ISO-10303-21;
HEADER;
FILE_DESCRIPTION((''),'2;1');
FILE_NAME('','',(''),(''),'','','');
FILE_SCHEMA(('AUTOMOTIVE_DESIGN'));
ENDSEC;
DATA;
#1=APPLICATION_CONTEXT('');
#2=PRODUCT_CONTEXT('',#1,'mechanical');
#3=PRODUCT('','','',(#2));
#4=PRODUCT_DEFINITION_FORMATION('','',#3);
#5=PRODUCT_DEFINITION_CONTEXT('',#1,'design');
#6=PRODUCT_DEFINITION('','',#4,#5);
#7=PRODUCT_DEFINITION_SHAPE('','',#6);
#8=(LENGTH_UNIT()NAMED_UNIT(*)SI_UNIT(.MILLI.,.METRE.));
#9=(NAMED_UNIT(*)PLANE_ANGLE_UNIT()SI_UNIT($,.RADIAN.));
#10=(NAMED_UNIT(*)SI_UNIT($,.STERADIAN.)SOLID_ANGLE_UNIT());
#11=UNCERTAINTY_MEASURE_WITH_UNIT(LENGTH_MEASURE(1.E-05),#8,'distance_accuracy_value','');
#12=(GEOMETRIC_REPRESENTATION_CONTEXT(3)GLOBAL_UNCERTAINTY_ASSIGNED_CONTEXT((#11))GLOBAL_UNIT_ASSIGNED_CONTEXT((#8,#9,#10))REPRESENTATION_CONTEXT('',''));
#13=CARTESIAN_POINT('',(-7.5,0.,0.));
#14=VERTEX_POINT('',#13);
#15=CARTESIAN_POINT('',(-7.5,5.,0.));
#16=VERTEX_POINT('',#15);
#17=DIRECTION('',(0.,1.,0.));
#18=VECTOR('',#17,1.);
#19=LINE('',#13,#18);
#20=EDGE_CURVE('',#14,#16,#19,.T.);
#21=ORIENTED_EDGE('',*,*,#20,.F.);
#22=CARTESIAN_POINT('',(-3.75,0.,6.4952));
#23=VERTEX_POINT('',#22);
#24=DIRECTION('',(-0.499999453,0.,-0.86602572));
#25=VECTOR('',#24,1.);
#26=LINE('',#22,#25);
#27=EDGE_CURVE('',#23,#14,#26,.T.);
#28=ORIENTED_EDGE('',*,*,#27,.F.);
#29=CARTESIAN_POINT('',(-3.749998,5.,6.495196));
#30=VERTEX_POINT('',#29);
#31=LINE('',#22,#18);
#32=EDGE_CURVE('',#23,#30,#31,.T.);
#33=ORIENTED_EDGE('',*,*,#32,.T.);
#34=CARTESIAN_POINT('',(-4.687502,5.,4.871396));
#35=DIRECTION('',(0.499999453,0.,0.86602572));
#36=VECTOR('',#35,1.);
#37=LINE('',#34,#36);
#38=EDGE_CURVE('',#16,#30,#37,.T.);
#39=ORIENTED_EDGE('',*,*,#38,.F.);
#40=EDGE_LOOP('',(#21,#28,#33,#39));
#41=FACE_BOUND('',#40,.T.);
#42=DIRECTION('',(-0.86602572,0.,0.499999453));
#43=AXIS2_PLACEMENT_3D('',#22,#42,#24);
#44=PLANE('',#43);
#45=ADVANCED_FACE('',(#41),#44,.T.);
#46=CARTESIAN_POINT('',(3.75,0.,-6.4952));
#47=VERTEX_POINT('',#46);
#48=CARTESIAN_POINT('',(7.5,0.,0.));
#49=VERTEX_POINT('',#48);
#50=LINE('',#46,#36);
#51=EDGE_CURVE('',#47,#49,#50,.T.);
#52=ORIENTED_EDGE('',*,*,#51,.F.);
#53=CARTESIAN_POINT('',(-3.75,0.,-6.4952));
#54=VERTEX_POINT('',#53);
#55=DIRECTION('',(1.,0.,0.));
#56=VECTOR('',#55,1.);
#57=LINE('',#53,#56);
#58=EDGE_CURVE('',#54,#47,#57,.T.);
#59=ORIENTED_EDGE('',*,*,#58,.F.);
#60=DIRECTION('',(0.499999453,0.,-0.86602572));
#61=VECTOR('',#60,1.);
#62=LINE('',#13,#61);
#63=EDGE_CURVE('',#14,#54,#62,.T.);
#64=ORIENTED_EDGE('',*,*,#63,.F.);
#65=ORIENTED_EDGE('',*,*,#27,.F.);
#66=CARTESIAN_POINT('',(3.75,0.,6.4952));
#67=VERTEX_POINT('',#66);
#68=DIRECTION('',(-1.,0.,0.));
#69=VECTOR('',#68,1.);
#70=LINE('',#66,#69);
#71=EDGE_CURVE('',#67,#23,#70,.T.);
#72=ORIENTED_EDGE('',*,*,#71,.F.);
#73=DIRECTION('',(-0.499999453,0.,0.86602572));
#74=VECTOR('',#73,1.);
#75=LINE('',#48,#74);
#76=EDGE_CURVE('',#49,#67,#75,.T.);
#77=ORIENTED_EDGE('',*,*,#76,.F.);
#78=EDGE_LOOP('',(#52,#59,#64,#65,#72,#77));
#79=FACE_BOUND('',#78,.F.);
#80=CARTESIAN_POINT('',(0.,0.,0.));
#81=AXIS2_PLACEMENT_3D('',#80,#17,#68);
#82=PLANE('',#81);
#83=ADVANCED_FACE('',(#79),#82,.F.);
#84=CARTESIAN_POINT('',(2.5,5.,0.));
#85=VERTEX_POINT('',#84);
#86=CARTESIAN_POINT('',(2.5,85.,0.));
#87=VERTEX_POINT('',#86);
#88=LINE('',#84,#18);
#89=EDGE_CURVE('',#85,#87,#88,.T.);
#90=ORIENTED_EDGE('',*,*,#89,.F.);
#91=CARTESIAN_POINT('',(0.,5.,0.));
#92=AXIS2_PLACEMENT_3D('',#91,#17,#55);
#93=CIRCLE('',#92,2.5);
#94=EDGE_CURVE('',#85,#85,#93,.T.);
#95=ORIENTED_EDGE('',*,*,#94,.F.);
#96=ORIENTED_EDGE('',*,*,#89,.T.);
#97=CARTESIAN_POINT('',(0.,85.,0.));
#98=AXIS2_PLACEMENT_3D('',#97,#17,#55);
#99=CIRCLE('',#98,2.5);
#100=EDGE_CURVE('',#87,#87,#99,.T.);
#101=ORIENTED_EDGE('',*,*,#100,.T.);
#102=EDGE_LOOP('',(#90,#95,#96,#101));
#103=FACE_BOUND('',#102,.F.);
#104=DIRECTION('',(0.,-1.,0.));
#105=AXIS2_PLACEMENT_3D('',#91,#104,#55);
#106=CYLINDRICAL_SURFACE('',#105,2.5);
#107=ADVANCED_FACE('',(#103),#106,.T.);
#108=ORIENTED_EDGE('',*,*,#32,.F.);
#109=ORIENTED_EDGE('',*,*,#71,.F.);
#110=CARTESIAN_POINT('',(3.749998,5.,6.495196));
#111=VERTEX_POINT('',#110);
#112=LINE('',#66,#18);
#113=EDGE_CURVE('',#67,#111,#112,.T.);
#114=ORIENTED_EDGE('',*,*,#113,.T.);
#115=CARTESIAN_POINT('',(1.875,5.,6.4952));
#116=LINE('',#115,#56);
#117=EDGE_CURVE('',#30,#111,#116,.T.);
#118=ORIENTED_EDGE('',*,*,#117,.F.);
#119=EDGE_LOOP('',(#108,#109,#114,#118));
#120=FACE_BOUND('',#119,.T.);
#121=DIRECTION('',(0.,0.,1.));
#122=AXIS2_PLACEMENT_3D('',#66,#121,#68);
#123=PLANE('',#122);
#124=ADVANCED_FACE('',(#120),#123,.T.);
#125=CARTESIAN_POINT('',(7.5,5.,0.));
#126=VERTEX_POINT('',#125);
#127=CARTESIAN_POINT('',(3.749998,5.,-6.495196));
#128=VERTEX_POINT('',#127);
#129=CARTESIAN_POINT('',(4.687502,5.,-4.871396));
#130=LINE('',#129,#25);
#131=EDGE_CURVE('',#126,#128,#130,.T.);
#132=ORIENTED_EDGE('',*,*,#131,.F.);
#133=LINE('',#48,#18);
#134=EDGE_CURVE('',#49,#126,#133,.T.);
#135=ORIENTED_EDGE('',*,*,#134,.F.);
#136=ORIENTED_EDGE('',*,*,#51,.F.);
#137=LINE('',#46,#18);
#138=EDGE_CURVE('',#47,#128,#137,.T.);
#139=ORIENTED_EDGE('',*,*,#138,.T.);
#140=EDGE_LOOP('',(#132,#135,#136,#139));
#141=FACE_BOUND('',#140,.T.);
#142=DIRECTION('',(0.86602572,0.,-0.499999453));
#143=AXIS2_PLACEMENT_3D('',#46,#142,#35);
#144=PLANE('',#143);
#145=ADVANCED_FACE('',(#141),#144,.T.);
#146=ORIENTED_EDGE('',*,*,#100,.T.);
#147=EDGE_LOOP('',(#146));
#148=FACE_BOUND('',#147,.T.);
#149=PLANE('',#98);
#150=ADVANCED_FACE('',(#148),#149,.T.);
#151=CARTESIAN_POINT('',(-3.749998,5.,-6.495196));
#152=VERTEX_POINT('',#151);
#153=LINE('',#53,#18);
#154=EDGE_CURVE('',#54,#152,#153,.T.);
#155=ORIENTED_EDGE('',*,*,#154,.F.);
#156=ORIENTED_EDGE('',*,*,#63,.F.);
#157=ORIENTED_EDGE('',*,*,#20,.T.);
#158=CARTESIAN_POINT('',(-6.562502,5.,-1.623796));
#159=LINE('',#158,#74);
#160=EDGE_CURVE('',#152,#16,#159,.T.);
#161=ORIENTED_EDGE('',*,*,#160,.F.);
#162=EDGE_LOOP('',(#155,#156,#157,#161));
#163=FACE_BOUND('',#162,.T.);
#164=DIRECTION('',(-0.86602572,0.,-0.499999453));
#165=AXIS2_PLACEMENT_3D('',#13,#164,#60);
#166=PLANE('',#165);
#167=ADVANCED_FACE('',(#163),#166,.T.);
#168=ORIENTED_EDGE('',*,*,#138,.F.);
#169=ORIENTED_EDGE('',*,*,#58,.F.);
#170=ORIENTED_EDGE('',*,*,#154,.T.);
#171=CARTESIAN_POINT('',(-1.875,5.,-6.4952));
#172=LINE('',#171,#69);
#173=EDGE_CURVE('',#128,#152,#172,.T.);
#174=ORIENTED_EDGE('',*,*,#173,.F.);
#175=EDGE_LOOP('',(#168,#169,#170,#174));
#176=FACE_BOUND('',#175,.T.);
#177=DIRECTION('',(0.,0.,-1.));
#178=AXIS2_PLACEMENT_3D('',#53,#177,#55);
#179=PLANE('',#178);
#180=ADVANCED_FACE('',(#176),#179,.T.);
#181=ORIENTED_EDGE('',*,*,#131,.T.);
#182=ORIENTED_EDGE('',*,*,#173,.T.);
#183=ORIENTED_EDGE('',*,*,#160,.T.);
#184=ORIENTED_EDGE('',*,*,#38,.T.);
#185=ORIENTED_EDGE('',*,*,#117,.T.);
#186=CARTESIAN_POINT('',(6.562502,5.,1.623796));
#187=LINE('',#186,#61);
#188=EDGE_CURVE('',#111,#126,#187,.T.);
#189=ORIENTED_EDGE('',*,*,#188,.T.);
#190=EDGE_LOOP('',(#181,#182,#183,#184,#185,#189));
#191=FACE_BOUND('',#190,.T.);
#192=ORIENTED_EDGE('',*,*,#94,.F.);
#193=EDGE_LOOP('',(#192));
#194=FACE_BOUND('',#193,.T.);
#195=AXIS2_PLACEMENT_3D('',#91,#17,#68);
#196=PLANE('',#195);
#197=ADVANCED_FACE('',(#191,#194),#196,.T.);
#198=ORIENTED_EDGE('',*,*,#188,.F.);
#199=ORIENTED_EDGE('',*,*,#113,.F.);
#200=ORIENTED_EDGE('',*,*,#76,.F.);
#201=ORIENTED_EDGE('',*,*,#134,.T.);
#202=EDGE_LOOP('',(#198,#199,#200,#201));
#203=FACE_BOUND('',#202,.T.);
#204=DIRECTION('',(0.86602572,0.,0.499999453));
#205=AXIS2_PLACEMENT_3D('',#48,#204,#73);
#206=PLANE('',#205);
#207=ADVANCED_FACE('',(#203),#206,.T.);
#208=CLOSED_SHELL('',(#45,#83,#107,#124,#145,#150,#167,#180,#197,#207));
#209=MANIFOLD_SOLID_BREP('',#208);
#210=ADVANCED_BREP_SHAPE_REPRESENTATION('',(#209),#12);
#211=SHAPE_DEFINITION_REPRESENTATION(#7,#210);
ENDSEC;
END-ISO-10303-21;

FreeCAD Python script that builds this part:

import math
import FreeCAD as App
import Part
import Sketcher
Q = App.Units.Quantity

doc = App.newDocument("Part")
body = doc.addObject("PartDesign::Body", "Body")

# Sketch on XZ plane
sketch1 = body.newObject("Sketcher::SketchObject", "Sketch")
sketch1.AttachmentSupport = (doc.getObject("XZ_Plane"), [""])
sketch1.MapMode = "FlatFace"
sketch1.addGeometry(Part.Circle(App.Vector(0, 0, 0), App.Vector(0, 0, 1), 8), False)
sketch1.addConstraint([
    Sketcher.Constraint("Coincident", 0, 3, -1, 1),
    Sketcher.Constraint("Diameter", 0, Q("15 mm")),
])
pad1 = body.newObject("PartDesign::Pad", "Pad")
pad1.Profile = sketch1
pad1.Length = 5
pad1.Reversed = True

# Sketch on XZ plane
sketch2 = body.newObject("Sketcher::SketchObject", "Sketch001")
sketch2.AttachmentSupport = (doc.getObject("XZ_Plane"), [""])
sketch2.MapMode = "FlatFace"
sketch2.AttachmentOffset = App.Placement(App.Vector(0, 0, -5), App.Rotation())
sketch2.addGeometry(Part.Circle(App.Vector(0, 0, 0), App.Vector(0, 0, 1), 2.5), False)
sketch2.addConstraint([
    Sketcher.Constraint("Coincident", 0, 3, -1, 1),
    Sketcher.Constraint("Diameter", 0, Q("5 mm")),
])
pad2 = body.newObject("PartDesign::Pad", "Pad001")
pad2.Profile = sketch2
pad2.Length = 80
pad2.Reversed = True

# Sketch on XZ plane
sketch3 = body.newObject("Sketcher::SketchObject", "Sketch002")
sketch3.AttachmentSupport = (doc.getObject("XZ_Plane"), [""])
sketch3.MapMode = "FlatFace"
sketch3.addGeometry([
    Part.LineSegment(App.Vector(4, 6, 0), App.Vector(8, 0, 0)),  # 0
    Part.ArcOfCircle(Part.Circle(App.Vector(0, 0, 0), App.Vector(0, 0, 1), 8), math.radians(0), math.radians(60)),  # 1
    Part.ArcOfCircle(Part.Circle(App.Vector(0, 0, 0), App.Vector(0, 0, 1), 8), math.radians(-60), math.radians(0)),  # 2
    Part.LineSegment(App.Vector(8, 0, 0), App.Vector(4, -6, 0)),  # 3
    Part.LineSegment(App.Vector(-4, 6, 0), App.Vector(4, 6, 0)),  # 4
    Part.ArcOfCircle(Part.Circle(App.Vector(0, 0, 0), App.Vector(0, 0, 1), 8), math.radians(60), math.radians(120)),  # 5
    Part.ArcOfCircle(Part.Circle(App.Vector(0, 0, 0), App.Vector(0, 0, 1), 8), math.radians(-120), math.radians(-60)),  # 6
    Part.LineSegment(App.Vector(-4, -6, 0), App.Vector(4, -6, 0)),  # 7
    Part.LineSegment(App.Vector(-8, 0, 0), App.Vector(-4, 6, 0)),  # 8
    Part.ArcOfCircle(Part.Circle(App.Vector(0, 0, 0), App.Vector(0, 0, 1), 8), math.radians(120), math.radians(180)),  # 9
    Part.ArcOfCircle(Part.Circle(App.Vector(0, 0, 0), App.Vector(0, 0, 1), 8), math.radians(180), math.radians(240)),  # 10
    Part.LineSegment(App.Vector(-8, 0, 0), App.Vector(-4, -6, 0)),  # 11
], False)
sketch3.addConstraint([
    Sketcher.Constraint("Coincident", 0, 1, 1, 2),
    Sketcher.Constraint("Coincident", 1, 1, 0, 2),
    Sketcher.Constraint("Coincident", 2, 1, 3, 2),
    Sketcher.Constraint("Coincident", 3, 1, 2, 2),
    Sketcher.Constraint("Coincident", 4, 1, 5, 2),
    Sketcher.Constraint("Coincident", 5, 1, 4, 2),
    Sketcher.Constraint("Coincident", 6, 1, 7, 1),
    Sketcher.Constraint("Coincident", 7, 2, 6, 2),
    Sketcher.Constraint("Coincident", 8, 1, 9, 2),
    Sketcher.Constraint("Coincident", 9, 1, 8, 2),
    Sketcher.Constraint("Coincident", 10, 1, 11, 1),
    Sketcher.Constraint("Coincident", 11, 2, 10, 2),
    Sketcher.Constraint("Horizontal", 4),
    Sketcher.Constraint("Horizontal", 7),
    Sketcher.Constraint("Coincident", 1, 3, -1, 1),
    Sketcher.Constraint("Coincident", 2, 3, -1, 1),
    Sketcher.Constraint("Coincident", 5, 3, -1, 1),
    Sketcher.Constraint("Coincident", 6, 3, -1, 1),
    Sketcher.Constraint("Coincident", 9, 3, -1, 1),
    Sketcher.Constraint("Coincident", 10, 3, -1, 1),
    Sketcher.Constraint("Coincident", 3, 1, 1, 1),
    Sketcher.Constraint("Coincident", 5, 1, 0, 1),
    Sketcher.Constraint("Coincident", 7, 2, 2, 1),
    Sketcher.Constraint("Coincident", 9, 1, 4, 1),
    Sketcher.Constraint("Coincident", 10, 1, 8, 1),
    Sketcher.Constraint("PointOnObject", 1, 1, -1),
    Sketcher.Constraint("PointOnObject", 8, 1, -1),
    Sketcher.Constraint("Parallel", 3, 8),
    Sketcher.Constraint("Parallel", 0, 11),
    Sketcher.Constraint("Angle", 0, Q("-60 deg")),
    Sketcher.Constraint("Radius", 1, Q("7.5 mm")),
])
pocket1 = body.newObject("PartDesign::Pocket", "Pocket")
pocket1.Profile = sketch3
pocket1.Type = "ThroughAll"

doc.recompute()
